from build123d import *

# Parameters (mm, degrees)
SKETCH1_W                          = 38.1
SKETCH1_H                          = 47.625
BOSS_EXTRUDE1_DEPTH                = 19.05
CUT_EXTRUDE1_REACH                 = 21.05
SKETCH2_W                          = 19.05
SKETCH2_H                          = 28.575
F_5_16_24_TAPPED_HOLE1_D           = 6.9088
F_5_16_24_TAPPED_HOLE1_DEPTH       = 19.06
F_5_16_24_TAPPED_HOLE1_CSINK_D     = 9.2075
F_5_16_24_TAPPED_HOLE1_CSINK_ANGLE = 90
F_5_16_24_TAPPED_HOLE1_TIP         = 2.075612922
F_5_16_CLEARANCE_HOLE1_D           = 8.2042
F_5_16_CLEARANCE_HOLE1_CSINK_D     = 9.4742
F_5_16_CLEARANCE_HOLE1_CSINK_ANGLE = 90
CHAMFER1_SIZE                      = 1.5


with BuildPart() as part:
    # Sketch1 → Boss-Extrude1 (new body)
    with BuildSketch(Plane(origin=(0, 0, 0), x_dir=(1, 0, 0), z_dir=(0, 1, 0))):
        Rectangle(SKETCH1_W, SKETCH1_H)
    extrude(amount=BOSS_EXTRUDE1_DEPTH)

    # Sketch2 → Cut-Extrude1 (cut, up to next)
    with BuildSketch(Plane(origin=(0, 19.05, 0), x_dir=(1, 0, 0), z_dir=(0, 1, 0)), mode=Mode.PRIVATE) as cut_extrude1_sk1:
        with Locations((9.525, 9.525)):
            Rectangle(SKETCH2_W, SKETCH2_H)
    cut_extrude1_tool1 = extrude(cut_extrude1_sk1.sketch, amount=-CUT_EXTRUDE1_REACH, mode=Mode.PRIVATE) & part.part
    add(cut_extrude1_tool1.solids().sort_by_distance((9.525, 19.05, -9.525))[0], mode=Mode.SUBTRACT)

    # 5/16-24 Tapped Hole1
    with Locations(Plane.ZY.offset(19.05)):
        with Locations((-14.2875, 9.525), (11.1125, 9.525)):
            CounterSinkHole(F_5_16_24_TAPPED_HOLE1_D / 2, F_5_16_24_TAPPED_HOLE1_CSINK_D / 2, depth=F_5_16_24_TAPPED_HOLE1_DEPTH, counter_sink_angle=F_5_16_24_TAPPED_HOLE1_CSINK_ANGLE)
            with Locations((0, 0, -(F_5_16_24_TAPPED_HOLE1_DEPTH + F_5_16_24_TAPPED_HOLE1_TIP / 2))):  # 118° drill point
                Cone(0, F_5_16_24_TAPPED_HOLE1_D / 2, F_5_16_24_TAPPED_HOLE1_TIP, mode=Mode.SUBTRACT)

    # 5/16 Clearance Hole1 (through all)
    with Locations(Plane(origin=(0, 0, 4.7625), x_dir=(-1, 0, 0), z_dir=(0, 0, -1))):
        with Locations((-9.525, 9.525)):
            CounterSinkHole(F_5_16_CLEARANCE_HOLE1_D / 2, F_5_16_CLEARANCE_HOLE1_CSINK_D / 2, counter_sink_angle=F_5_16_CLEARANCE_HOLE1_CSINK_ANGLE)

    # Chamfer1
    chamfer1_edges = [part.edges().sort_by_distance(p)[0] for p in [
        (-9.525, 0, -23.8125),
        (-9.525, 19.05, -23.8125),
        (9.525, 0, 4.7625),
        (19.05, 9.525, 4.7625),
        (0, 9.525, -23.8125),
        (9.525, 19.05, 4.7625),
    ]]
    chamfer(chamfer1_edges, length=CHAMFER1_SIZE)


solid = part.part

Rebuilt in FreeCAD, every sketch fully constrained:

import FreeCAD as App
import Part
import Sketcher
from FreeCAD import Vector
Q = App.Units.Quantity


def edges_at(feature, points):
    """Names of the edges that pass closest to the given points."""
    edges = feature.Shape.Edges
    near = lambda p: min(range(len(edges)), key=lambda i: edges[i].distToShape(Part.Vertex(*p))[0])
    return sorted({f"Edge{near(p) + 1}" for p in points})

doc = App.newDocument("Part")
body = doc.addObject("PartDesign::Body", "Body")

# Sketch on XZ plane
sketch1 = body.newObject("Sketcher::SketchObject", "Sketch")
sketch1.AttachmentSupport = (doc.getObject("XZ_Plane"), [""])
sketch1.MapMode = "FlatFace"
sketch1.addGeometry([
    Part.LineSegment(Vector(-19.05, -23.8125, 0), Vector(-19.05, 23.8125, 0)),
    Part.LineSegment(Vector(-19.05, 23.8125, 0), Vector(19.05, 23.8125, 0)),
    Part.LineSegment(Vector(19.05, 23.8125, 0), Vector(19.05, -23.8125, 0)),
    Part.LineSegment(Vector(19.05, -23.8125, 0), Vector(-19.05, -23.8125, 0)),
], False)
sketch1.addConstraint([
    Sketcher.Constraint("Coincident", 0, 2, 1, 1),
    Sketcher.Constraint("Coincident", 1, 2, 2, 1),
    Sketcher.Constraint("Coincident", 2, 2, 3, 1),
    Sketcher.Constraint("Coincident", 3, 2, 0, 1),
    Sketcher.Constraint("Vertical", 0),
    Sketcher.Constraint("Horizontal", 1),
    Sketcher.Constraint("Vertical", 2),
    Sketcher.Constraint("Horizontal", 3),
    Sketcher.Constraint("Symmetric", 0, 2, 2, 2, -1, 1),
    Sketcher.Constraint("DistanceX", 1, 1, 1, 2, Q("1.5 in")),
    Sketcher.Constraint("DistanceY", 0, 1, 0, 2, Q("1.875 in")),
])
pad1 = body.newObject("PartDesign::Pad", "Pad")
pad1.Profile = sketch1
pad1.Length = Q("0.75 in")
pad1.Reversed = True

# Sketch on XZ plane
sketch2 = body.newObject("Sketcher::SketchObject", "Sketch001")
sketch2.AttachmentSupport = (doc.getObject("XZ_Plane"), [""])
sketch2.MapMode = "FlatFace"
sketch2.AttachmentOffset = App.Placement(Vector(0, 0, -0.75 * 25.4), App.Rotation())
sketch2.addGeometry([
    Part.LineSegment(Vector(0, -23.8125, 0), Vector(0, 4.7625, 0)),
    Part.LineSegment(Vector(0, 4.7625, 0), Vector(19.05, 4.7625, 0)),
    Part.LineSegment(Vector(19.05, 4.7625, 0), Vector(19.05, -23.8125, 0)),
    Part.LineSegment(Vector(19.05, -23.8125, 0), Vector(0, -23.8125, 0)),
], False)
sketch2.addConstraint([
    Sketcher.Constraint("Coincident", 0, 2, 1, 1),
    Sketcher.Constraint("Coincident", 1, 2, 2, 1),
    Sketcher.Constraint("Coincident", 2, 2, 3, 1),
    Sketcher.Constraint("Coincident", 3, 2, 0, 1),
    Sketcher.Constraint("Vertical", 0),
    Sketcher.Constraint("Horizontal", 1),
    Sketcher.Constraint("Vertical", 2),
    Sketcher.Constraint("Horizontal", 3),
    Sketcher.Constraint("PointOnObject", 0, 2, -2),
    Sketcher.Constraint("DistanceX", 1, 1, 1, 2, Q("0.75 in")),
    Sketcher.Constraint("DistanceY", 0, 1, 0, 2, Q("1.125 in")),
    Sketcher.Constraint("DistanceY", -1, 1, 0, 2, Q("0.1875 in")),
])
pocket1 = body.newObject("PartDesign::Pocket", "Pocket")
pocket1.Profile = sketch2
pocket1.Type = "UpToFirst"
pocket1.Reversed = True

# Sketch on YZ plane
sketch3 = body.newObject("Sketcher::SketchObject", "Sketch002")
sketch3.AttachmentSupport = (doc.getObject("YZ_Plane"), [""])
sketch3.MapMode = "FlatFace"
sketch3.AttachmentOffset = App.Placement(Vector(0, 0, -0.75 * 25.4), App.Rotation())
sketch3.addGeometry([
    Part.Circle(Vector(9.525, -14.2875, 0), Vector(0, 0, 1), 3.4544),
    Part.Circle(Vector(9.525, 11.1125, 0), Vector(0, 0, 1), 3.4544),
], False)
sketch3.addConstraint([
    Sketcher.Constraint("Equal", 0, 1),
    Sketcher.Constraint("Vertical", 0, 3, 1, 3),
    Sketcher.Constraint("Diameter", 0, Q("0.272 in")),
    Sketcher.Constraint("DistanceY", 0, 3, 1, 3, Q("1 in")),
    Sketcher.Constraint("DistanceX", -1, 1, 0, 3, Q("0.375 in")),
    Sketcher.Constraint("DistanceY", 0, 3, -1, 1, Q("0.5625 in")),
])
doc.recompute()
hole = body.newObject("PartDesign::Hole", "Hole")
hole.Profile = sketch3
hole.ThreadType = "None"
hole.Diameter = Q("0.272 in")
hole.DepthType = "Dimension"
hole.Depth = 19.06
hole.DrillPoint = "Angled"
hole.DrillPointAngle = 118
hole.HoleCutType = "Countersink"
hole.HoleCutDiameter = Q("0.3625 in")
hole.HoleCutCountersinkAngle = 90
hole.Reversed = True

# Sketch on XY plane
sketch4 = body.newObject("Sketcher::SketchObject", "Sketch003")
sketch4.AttachmentSupport = (doc.getObject("XY_Plane"), [""])
sketch4.MapMode = "FlatFace"
sketch4.AttachmentOffset = App.Placement(Vector(0, 0, 0.1875 * 25.4), App.Rotation())
sketch4.addGeometry(Part.Circle(Vector(9.525, 9.525, 0), Vector(0, 0, 1), 4.1021), False)
sketch4.addConstraint([
    Sketcher.Constraint("Diameter", 0, Q("0.323 in")),
    Sketcher.Constraint("DistanceX", -1, 1, 0, 3, Q("0.375 in")),
    Sketcher.Constraint("DistanceY", -1, 1, 0, 3, Q("0.375 in")),
])
doc.recompute()
hole2 = body.newObject("PartDesign::Hole", "Hole001")
hole2.Profile = sketch4
hole2.ThreadType = "None"
hole2.Diameter = Q("0.323 in")
hole2.DepthType = "ThroughAll"
hole2.HoleCutType = "Countersink"
hole2.HoleCutDiameter = Q("0.373 in")
hole2.HoleCutCountersinkAngle = 90
hole2.Reversed = True
doc.recompute()

chamfer = body.newObject("PartDesign::Chamfer", "Chamfer")
chamfer.Base = (hole2, edges_at(hole2, [
    (-9.525, 0, -23.812),
    (-9.525, 19.05, -23.812),
    (9.525, 0, 4.763),
    (19.05, 9.525, 4.763),
    (0, 9.525, -23.812),
    (9.525, 19.05, 4.763),
]))
chamfer.Size = 1.5

doc.recompute()
